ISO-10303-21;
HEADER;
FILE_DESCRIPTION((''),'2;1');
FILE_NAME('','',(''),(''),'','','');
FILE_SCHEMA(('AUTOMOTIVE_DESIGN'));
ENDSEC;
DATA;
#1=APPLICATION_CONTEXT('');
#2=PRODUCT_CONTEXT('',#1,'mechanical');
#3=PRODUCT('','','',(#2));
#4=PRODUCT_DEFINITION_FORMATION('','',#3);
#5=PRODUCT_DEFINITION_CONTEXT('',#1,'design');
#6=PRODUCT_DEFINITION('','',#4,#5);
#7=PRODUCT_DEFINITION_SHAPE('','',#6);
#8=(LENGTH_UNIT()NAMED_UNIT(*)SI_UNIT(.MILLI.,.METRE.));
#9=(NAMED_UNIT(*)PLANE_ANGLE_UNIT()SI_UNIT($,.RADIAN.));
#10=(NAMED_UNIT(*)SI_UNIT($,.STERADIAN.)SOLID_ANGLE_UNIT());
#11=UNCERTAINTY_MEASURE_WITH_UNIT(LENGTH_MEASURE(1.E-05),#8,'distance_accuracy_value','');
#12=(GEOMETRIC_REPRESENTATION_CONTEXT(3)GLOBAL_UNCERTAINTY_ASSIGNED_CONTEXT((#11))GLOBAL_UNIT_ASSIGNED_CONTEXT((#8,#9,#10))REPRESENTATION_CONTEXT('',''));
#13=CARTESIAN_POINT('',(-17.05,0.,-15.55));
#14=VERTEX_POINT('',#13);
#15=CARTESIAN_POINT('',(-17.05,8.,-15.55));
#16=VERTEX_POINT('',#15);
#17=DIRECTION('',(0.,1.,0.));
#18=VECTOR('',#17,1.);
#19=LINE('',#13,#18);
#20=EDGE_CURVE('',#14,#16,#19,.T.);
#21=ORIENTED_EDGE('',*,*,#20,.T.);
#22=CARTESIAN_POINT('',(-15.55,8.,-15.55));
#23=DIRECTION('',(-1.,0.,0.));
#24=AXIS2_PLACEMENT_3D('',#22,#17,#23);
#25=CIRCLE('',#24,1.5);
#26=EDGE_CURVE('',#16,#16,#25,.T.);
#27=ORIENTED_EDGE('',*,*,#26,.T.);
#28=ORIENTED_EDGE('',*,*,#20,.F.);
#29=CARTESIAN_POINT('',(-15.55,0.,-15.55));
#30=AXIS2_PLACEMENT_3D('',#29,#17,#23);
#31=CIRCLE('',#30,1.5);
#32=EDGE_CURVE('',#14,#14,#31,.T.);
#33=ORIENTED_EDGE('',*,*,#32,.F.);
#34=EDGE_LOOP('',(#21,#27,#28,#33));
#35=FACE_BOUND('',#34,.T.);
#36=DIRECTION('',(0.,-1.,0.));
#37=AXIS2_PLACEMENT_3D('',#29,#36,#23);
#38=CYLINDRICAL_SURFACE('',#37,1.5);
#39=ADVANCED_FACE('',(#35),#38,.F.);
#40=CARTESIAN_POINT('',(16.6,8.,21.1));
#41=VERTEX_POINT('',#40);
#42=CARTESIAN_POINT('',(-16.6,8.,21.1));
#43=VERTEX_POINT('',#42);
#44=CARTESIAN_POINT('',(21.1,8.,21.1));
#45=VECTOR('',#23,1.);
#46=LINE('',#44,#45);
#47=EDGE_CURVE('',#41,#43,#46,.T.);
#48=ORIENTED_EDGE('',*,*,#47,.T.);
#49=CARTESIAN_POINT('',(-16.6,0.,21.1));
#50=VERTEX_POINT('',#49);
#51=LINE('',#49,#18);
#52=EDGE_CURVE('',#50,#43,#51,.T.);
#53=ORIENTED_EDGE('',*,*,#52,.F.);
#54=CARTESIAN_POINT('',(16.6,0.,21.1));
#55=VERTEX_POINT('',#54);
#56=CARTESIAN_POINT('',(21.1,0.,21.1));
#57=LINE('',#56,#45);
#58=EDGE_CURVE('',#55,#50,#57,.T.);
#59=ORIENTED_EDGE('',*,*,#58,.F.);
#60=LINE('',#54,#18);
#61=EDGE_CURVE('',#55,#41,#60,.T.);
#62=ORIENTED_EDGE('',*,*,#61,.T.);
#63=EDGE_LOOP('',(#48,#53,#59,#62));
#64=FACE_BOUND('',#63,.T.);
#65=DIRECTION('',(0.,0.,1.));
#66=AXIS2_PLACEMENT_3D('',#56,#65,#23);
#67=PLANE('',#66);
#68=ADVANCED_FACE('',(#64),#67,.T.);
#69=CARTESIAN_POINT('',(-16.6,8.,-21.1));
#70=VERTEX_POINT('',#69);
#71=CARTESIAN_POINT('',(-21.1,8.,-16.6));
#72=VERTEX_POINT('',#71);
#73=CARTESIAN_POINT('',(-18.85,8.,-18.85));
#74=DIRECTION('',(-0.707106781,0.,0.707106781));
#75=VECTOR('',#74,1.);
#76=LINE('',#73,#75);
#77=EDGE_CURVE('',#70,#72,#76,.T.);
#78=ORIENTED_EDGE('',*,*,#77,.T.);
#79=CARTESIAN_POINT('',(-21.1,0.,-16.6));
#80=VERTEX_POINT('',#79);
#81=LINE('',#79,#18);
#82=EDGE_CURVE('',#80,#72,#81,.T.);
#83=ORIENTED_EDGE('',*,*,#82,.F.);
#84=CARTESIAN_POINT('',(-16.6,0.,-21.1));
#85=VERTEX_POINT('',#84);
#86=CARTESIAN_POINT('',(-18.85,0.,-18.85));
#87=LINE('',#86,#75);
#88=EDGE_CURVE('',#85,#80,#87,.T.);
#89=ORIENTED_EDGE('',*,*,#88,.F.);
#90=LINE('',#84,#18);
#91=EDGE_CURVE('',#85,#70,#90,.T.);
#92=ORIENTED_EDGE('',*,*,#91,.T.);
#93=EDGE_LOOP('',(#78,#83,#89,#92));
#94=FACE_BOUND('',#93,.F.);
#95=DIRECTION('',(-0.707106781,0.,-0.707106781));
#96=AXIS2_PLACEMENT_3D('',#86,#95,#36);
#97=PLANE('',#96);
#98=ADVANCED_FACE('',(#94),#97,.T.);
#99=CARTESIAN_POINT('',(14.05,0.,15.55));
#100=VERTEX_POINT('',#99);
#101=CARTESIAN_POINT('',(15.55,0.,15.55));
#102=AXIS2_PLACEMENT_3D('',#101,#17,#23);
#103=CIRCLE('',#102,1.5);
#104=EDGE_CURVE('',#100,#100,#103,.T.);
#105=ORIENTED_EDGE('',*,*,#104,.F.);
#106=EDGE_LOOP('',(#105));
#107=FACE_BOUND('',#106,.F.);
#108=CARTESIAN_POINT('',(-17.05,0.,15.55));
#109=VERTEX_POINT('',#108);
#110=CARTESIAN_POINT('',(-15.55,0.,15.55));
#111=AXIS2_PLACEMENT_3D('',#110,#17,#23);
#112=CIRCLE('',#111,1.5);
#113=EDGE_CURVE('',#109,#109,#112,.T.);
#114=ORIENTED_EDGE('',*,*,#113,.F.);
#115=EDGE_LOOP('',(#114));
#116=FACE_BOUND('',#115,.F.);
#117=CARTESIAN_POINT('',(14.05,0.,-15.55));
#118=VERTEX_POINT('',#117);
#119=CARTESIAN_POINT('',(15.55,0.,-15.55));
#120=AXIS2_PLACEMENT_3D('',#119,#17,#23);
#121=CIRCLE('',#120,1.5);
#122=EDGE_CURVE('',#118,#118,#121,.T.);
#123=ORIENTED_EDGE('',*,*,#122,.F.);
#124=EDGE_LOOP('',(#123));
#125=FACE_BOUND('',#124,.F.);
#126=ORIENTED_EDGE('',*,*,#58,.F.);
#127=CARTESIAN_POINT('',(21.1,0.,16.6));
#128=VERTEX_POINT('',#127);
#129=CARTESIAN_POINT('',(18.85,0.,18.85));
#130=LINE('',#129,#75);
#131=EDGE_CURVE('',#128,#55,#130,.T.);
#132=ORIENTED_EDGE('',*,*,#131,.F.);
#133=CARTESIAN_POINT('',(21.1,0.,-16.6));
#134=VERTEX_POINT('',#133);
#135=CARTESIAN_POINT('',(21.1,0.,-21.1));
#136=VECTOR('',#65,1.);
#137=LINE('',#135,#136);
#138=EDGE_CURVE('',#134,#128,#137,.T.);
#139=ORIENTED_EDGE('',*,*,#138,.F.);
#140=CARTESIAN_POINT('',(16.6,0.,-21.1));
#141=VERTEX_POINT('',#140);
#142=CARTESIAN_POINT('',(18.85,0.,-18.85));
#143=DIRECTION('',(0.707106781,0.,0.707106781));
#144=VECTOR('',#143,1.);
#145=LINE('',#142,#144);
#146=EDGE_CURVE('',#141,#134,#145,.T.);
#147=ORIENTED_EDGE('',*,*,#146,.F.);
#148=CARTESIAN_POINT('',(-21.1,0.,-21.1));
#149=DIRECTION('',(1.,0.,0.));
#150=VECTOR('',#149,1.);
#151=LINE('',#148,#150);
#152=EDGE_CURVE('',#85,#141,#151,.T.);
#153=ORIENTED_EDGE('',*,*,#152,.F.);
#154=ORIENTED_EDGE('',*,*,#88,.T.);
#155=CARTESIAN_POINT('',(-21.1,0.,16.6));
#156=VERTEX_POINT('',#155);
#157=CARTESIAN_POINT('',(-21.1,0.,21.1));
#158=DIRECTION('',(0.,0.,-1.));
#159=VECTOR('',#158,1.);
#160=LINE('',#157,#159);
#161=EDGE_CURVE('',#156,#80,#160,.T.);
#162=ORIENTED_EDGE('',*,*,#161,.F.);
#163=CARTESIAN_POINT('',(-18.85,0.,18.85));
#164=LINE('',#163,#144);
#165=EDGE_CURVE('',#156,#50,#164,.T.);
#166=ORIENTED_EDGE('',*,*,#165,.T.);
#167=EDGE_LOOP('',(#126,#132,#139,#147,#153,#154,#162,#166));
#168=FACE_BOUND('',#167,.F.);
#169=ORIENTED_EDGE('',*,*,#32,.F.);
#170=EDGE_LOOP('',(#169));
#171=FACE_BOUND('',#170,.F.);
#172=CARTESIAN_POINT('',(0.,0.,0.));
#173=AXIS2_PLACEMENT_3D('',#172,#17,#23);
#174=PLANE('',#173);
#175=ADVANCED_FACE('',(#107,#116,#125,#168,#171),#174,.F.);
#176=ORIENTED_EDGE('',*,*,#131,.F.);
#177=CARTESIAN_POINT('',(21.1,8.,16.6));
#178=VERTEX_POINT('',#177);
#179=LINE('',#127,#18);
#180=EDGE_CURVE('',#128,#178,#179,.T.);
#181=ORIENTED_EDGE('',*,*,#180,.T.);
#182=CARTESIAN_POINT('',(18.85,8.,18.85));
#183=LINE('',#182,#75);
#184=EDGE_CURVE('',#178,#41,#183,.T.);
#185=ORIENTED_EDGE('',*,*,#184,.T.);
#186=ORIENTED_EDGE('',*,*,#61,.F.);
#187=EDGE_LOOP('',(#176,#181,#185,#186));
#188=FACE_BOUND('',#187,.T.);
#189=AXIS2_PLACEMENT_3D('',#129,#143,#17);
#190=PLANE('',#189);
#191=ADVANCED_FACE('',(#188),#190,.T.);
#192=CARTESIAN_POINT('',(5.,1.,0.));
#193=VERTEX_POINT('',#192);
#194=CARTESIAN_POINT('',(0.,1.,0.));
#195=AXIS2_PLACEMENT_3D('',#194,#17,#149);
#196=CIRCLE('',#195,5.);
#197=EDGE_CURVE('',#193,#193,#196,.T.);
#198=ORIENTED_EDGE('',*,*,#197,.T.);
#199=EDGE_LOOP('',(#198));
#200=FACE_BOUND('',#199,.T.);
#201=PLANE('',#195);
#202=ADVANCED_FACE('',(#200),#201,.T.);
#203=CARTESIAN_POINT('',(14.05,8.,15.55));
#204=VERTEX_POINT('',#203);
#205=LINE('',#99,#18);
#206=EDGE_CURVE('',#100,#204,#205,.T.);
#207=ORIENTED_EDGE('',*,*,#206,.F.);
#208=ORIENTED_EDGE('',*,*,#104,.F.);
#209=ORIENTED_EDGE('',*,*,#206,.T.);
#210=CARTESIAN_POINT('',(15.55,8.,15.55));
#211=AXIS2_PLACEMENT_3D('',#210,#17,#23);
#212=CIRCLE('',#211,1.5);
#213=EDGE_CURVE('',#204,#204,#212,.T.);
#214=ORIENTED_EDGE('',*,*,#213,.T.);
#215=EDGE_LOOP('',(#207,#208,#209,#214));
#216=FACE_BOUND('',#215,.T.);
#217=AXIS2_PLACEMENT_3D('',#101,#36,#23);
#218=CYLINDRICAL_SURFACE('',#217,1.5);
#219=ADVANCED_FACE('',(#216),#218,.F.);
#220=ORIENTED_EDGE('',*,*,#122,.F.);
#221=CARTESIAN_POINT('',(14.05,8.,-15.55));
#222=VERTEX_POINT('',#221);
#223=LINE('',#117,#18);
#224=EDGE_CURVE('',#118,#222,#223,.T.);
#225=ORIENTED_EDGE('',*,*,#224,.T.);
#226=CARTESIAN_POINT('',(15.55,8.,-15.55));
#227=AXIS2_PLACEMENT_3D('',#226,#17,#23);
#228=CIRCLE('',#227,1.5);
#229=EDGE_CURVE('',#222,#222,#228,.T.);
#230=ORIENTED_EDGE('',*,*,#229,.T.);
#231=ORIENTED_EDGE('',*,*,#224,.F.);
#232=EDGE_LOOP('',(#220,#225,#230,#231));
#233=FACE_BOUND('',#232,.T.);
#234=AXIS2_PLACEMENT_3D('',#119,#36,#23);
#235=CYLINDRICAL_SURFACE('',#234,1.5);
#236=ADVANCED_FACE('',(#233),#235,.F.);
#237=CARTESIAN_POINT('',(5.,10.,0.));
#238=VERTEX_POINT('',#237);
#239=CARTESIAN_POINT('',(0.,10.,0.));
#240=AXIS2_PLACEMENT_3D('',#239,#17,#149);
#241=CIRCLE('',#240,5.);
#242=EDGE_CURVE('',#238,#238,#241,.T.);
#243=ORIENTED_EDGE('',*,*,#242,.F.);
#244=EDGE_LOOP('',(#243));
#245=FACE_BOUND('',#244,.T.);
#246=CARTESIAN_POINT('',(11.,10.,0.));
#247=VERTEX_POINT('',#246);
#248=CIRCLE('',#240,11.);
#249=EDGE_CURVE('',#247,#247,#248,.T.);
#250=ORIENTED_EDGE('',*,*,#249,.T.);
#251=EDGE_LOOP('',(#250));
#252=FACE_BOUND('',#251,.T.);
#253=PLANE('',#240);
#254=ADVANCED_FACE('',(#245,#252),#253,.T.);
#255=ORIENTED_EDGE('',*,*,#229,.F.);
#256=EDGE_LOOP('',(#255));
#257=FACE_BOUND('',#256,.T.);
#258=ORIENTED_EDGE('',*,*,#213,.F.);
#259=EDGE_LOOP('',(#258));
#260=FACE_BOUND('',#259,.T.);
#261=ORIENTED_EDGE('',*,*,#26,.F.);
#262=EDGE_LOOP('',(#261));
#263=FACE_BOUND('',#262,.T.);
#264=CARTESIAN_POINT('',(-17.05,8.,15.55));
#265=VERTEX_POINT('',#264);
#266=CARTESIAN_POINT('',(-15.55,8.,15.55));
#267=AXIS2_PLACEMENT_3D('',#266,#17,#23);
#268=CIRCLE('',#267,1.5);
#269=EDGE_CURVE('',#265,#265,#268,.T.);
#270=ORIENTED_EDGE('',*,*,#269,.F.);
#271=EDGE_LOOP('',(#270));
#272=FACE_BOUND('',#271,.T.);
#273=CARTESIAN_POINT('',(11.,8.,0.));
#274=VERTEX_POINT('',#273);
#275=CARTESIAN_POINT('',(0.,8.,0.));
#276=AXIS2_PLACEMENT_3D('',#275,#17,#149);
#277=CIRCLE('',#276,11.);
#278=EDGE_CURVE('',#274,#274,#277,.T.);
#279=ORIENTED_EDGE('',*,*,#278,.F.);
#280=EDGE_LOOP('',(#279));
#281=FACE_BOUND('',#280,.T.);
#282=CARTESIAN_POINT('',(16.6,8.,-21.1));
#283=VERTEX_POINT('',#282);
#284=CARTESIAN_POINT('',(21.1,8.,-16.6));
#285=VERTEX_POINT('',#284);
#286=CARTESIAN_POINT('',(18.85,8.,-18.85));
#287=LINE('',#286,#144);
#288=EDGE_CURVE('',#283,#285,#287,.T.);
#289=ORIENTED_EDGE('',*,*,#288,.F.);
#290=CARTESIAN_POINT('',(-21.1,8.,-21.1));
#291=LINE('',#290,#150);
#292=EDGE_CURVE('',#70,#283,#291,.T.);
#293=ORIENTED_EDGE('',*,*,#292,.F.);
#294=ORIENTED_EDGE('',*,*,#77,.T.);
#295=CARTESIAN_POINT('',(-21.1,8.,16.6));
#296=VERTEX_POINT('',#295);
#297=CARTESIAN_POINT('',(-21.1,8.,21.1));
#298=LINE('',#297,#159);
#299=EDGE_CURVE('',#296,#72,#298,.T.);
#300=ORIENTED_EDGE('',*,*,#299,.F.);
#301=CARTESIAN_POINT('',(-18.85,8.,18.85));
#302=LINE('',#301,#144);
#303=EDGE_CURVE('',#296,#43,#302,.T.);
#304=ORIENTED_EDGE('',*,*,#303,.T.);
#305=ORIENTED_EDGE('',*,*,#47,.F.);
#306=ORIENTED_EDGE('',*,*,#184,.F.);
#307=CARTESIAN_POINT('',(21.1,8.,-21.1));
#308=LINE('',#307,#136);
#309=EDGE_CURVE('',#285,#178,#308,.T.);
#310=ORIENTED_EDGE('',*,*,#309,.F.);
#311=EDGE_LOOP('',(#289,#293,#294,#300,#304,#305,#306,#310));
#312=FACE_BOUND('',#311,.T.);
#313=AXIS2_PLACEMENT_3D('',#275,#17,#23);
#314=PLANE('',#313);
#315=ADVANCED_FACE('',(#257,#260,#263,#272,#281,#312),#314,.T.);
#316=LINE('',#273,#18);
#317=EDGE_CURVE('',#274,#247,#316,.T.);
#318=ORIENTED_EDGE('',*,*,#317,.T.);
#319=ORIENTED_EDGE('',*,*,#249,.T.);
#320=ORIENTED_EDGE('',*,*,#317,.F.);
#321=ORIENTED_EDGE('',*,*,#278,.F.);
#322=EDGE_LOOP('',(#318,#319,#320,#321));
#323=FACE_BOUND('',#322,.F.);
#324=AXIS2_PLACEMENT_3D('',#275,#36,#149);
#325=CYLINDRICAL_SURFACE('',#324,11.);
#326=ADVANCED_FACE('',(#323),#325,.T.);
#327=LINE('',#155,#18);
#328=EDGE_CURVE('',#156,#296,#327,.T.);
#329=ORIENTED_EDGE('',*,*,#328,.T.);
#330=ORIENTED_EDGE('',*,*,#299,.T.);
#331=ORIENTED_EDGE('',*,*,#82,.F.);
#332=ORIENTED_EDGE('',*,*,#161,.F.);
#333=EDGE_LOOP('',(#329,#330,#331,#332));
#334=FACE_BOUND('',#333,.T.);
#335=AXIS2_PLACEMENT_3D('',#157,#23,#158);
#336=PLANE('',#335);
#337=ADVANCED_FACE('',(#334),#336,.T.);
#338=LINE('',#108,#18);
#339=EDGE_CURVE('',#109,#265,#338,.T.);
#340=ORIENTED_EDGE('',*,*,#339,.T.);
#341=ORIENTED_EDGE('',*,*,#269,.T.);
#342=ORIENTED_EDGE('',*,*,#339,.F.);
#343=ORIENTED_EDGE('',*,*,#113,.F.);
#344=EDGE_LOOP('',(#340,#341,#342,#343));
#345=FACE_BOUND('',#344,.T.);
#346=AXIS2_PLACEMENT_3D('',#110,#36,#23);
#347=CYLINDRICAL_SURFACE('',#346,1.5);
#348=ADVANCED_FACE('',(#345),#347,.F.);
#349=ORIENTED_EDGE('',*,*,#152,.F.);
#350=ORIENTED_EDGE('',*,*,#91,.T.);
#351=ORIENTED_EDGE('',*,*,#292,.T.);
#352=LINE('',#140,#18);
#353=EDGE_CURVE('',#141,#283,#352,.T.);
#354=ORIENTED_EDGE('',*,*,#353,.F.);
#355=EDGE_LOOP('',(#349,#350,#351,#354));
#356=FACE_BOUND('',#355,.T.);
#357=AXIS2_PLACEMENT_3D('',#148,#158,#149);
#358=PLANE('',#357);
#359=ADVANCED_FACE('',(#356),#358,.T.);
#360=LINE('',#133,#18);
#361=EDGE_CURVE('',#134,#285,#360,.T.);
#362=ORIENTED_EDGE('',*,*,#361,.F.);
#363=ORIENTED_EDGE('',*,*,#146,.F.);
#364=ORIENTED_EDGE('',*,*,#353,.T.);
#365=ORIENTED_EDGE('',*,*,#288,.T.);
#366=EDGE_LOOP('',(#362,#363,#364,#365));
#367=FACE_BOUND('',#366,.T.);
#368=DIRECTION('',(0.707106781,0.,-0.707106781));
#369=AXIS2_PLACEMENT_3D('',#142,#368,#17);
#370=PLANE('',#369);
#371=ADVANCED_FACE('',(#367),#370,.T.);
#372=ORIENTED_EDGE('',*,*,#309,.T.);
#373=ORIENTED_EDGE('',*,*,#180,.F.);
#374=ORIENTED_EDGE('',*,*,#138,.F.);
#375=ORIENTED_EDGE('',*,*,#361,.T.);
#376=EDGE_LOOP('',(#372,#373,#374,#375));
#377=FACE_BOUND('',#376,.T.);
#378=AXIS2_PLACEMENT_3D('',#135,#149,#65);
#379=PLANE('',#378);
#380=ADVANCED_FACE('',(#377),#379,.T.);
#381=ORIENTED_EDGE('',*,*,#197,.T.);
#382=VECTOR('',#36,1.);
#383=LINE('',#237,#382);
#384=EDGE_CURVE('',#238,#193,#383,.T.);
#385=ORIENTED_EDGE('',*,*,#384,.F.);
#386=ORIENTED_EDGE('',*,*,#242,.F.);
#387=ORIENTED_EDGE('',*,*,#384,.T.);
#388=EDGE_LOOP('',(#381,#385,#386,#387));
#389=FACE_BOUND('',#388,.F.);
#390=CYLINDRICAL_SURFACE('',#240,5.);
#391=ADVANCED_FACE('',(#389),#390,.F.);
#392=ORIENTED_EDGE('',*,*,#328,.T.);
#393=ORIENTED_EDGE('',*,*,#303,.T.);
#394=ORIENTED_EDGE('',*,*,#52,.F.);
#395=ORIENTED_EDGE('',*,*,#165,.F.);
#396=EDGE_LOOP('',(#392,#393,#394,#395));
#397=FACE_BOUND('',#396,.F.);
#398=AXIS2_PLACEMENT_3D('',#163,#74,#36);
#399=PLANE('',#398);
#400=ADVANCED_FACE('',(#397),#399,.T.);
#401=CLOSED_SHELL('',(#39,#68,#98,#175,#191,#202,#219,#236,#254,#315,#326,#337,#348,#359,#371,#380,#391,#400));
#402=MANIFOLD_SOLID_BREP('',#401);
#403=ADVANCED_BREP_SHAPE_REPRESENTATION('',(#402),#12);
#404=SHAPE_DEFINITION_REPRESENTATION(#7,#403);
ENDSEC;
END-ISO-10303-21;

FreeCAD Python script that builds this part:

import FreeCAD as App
import Part
import Sketcher
Q = App.Units.Quantity


def edges_at(feature, points):
    """Names of the edges that pass closest to the given points."""
    edges = feature.Shape.Edges
    near = lambda p: min(range(len(edges)), key=lambda i: edges[i].distToShape(Part.Vertex(*p))[0])
    return sorted({f"Edge{near(p) + 1}" for p in points})

doc = App.newDocument("Part")
body = doc.addObject("PartDesign::Body", "Body")

# Sketch on XZ plane
sketch1 = body.newObject("Sketcher::SketchObject", "Sketch")
sketch1.AttachmentSupport = (doc.getObject("XZ_Plane"), [""])
sketch1.MapMode = "FlatFace"
sketch1.addGeometry([
    Part.LineSegment(App.Vector(21.1, -21.1, 0), App.Vector(-21.1, -21.1, 0)),  # 0
    Part.LineSegment(App.Vector(-21.1, -21.1, 0), App.Vector(-21.1, 21.1, 0)),  # 1
    Part.LineSegment(App.Vector(-21.1, 21.1, 0), App.Vector(21.1, 21.1, 0)),  # 2
    Part.LineSegment(App.Vector(21.1, 21.1, 0), App.Vector(21.1, -21.1, 0)),  # 3
    Part.Circle(App.Vector(15.6, -15.6, 0), App.Vector(0, 0, 1), 1.5),  # 4
    Part.Circle(App.Vector(-15.6, -15.6, 0), App.Vector(0, 0, 1), 1.5),  # 5
    Part.Circle(App.Vector(15.6, 15.6, 0), App.Vector(0, 0, 1), 1.5),  # 6
    Part.Circle(App.Vector(-15.6, 15.6, 0), App.Vector(0, 0, 1), 1.5),  # 7
], False)
sketch1.addConstraint([
    Sketcher.Constraint("Coincident", 0, 2, 1, 1),
    Sketcher.Constraint("Coincident", 1, 2, 2, 1),
    Sketcher.Constraint("Coincident", 2, 2, 3, 1),
    Sketcher.Constraint("Coincident", 3, 2, 0, 1),
    Sketcher.Constraint("Horizontal", 0),
    Sketcher.Constraint("Vertical", 1),
    Sketcher.Constraint("Horizontal", 2),
    Sketcher.Constraint("Vertical", 3),
    Sketcher.Constraint("Equal", 4, 5),
    Sketcher.Constraint("Equal", 5, 6),
    Sketcher.Constraint("Equal", 6, 7),
    Sketcher.Constraint("Symmetric", 5, 3, 6, 3, -1, 1),
    Sketcher.Constraint("Symmetric", 4, 3, 7, 3, -1, 1),
    Sketcher.Constraint("Symmetric", 0, 2, 2, 2, -1, 1),
    Sketcher.Constraint("Symmetric", 4, 3, 5, 3, -2),
    Sketcher.Constraint("Equal", 2, 1),
    Sketcher.Constraint("Diameter", 4, Q("3 mm")),
    Sketcher.Constraint("DistanceX", 0, 2, 0, 1, Q("42.2 mm")),
    Sketcher.Constraint("DistanceX", 5, 3, 4, 3, Q("31.1 mm")),
    Sketcher.Constraint("DistanceY", 4, 3, 6, 3, Q("31.1 mm")),
])
pad1 = body.newObject("PartDesign::Pad", "Pad")
pad1.Profile = sketch1
pad1.Length = 8
pad1.Reversed = True

# Sketch on XZ plane
sketch2 = body.newObject("Sketcher::SketchObject", "Sketch001")
sketch2.AttachmentSupport = (doc.getObject("XZ_Plane"), [""])
sketch2.MapMode = "FlatFace"
sketch2.AttachmentOffset = App.Placement(App.Vector(0, 0, -8), App.Rotation())
sketch2.addGeometry(Part.Circle(App.Vector(0, 0, 0), App.Vector(0, 0, 1), 11), False)
sketch2.addConstraint([
    Sketcher.Constraint("Coincident", 0, 3, -1, 1),
    Sketcher.Constraint("Diameter", 0, Q("22 mm")),
])
pad2 = body.newObject("PartDesign::Pad", "Pad001")
pad2.Profile = sketch2
pad2.Length = 2
pad2.Reversed = True
doc.recompute()

chamfer = body.newObject("PartDesign::Chamfer", "Chamfer")
chamfer.Base = (pad2, edges_at(pad2, [
    (21.1, 4, -21.1),
    (21.1, 4, 21.1),
    (-21.1, 4, 21.1),
    (-21.1, 4, -21.1),
]))
chamfer.Size = 4.5

# Sketch on XZ plane
sketch3 = body.newObject("Sketcher::SketchObject", "Sketch002")
sketch3.AttachmentSupport = (doc.getObject("XZ_Plane"), [""])
sketch3.MapMode = "FlatFace"
sketch3.AttachmentOffset = App.Placement(App.Vector(0, 0, -10), App.Rotation())
sketch3.addGeometry(Part.Circle(App.Vector(0, 0, 0), App.Vector(0, 0, 1), 5), False)
sketch3.addConstraint([
    Sketcher.Constraint("Coincident", 0, 3, -1, 1),
    Sketcher.Constraint("Diameter", 0, Q("10 mm")),
])
pocket1 = body.newObject("PartDesign::Pocket", "Pocket")
pocket1.Profile = sketch3
pocket1.Length = 9
pocket1.Reversed = True

doc.recompute()
